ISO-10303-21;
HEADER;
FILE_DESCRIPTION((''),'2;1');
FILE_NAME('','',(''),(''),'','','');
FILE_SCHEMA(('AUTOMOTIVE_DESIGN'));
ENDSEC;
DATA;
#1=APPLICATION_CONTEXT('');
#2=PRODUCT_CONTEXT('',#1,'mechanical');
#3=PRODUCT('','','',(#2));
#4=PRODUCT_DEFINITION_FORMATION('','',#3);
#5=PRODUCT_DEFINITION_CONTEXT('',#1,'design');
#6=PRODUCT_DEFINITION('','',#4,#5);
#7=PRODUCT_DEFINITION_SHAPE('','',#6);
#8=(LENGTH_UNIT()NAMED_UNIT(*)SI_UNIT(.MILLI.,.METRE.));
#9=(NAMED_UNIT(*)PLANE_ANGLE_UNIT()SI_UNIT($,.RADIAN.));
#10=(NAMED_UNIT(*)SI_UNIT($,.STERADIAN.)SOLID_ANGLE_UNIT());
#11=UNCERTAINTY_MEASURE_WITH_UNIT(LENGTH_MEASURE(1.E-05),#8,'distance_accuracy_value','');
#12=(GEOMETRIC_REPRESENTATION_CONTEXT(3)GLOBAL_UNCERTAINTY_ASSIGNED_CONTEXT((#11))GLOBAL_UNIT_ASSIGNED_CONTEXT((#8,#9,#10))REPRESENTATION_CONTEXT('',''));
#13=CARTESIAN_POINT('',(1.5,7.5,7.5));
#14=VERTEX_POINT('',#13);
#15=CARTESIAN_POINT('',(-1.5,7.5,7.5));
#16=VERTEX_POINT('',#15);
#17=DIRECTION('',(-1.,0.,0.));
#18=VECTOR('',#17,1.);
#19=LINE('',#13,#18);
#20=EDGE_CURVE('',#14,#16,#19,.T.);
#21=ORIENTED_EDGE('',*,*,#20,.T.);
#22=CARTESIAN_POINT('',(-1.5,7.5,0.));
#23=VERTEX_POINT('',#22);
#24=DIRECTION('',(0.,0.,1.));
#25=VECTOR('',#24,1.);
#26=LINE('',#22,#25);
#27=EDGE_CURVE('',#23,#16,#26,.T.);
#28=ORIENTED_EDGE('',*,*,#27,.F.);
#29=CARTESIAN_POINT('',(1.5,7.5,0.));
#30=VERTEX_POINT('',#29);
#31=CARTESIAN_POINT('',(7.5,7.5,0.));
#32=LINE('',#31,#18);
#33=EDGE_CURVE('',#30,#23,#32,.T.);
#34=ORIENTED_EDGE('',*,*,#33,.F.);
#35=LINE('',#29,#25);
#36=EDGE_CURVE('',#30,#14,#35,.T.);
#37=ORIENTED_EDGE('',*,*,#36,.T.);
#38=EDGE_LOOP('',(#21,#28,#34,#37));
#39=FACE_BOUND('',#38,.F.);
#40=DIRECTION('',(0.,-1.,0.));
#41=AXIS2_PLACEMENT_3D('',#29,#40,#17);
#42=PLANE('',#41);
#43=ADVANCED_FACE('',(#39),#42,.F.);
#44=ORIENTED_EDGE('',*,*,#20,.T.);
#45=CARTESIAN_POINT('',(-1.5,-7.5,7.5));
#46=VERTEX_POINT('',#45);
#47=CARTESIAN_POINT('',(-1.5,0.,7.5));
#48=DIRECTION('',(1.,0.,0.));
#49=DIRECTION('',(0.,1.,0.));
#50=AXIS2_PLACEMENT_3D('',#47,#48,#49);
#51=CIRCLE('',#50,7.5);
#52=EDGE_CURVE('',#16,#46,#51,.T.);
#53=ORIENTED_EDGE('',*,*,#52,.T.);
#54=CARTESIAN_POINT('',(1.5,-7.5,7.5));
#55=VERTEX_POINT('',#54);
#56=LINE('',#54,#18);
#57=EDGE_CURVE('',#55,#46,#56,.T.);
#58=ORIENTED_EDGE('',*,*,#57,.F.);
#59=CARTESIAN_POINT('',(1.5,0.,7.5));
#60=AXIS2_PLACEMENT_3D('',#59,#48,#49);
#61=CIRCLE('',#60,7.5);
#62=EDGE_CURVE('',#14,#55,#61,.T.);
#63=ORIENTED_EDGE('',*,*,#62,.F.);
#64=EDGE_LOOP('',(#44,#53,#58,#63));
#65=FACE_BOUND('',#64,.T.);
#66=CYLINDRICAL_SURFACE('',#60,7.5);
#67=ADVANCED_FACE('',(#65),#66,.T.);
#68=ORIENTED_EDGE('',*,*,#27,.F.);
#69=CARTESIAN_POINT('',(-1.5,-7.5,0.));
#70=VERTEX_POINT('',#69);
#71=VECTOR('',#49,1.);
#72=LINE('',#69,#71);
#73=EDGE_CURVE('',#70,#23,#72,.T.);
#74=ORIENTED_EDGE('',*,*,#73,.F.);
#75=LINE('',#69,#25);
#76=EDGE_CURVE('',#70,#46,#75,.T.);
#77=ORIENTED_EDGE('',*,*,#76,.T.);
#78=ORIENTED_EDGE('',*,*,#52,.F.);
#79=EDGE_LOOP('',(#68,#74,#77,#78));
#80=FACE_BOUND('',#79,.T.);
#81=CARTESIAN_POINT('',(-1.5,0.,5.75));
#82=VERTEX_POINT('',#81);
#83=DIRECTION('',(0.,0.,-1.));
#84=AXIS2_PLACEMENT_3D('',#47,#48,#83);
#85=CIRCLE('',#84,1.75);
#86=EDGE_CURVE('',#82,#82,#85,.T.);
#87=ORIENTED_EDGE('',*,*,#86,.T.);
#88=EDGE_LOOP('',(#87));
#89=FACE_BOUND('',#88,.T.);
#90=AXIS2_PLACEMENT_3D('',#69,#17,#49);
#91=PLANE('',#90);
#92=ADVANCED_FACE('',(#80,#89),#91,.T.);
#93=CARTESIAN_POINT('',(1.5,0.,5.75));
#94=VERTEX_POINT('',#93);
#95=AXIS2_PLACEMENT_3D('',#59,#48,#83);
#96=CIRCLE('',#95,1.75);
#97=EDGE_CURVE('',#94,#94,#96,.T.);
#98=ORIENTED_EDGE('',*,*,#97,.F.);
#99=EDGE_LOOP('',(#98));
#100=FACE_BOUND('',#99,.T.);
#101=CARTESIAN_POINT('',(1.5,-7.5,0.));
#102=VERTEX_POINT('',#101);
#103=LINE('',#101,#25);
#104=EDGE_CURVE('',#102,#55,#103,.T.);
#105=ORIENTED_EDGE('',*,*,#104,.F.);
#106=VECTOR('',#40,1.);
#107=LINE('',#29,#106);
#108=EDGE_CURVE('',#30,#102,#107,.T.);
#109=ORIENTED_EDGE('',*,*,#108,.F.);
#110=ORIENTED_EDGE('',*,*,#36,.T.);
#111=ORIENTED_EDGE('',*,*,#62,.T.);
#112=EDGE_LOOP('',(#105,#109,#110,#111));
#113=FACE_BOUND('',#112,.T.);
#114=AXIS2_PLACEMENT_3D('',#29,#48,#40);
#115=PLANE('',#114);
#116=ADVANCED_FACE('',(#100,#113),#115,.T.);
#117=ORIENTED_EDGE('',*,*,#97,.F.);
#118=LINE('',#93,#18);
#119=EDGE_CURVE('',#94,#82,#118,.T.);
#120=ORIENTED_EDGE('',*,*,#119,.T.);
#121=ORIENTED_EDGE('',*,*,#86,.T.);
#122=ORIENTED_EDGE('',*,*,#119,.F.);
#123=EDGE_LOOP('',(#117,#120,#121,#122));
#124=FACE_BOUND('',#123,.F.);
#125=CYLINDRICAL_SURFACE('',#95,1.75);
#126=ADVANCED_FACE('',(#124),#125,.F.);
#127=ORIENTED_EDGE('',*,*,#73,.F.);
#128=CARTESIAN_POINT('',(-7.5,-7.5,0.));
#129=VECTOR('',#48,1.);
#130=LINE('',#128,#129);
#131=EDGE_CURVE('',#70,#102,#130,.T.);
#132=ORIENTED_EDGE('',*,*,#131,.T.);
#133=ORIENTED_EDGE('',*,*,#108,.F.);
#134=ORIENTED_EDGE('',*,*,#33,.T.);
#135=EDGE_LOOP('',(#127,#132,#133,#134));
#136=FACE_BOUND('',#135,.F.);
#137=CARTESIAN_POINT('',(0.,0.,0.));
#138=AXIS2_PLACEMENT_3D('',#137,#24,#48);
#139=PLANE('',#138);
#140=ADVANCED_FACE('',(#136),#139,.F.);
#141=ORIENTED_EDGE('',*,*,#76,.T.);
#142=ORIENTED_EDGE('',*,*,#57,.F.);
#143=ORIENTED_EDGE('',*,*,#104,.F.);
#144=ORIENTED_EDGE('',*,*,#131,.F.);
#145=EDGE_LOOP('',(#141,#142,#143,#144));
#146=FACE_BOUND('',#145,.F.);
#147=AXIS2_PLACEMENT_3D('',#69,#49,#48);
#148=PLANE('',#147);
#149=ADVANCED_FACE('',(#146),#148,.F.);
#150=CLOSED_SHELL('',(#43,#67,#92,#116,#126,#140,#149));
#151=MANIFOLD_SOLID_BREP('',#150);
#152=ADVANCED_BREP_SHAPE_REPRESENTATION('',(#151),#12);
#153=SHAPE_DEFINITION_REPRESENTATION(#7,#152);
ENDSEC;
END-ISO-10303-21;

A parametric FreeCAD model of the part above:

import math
import FreeCAD as App
import Part
import Sketcher


def add_polygon(sketch, points):
    """Adds a closed chain of lines whose ends are joined by coincident constraints."""
    first, n = sketch.GeometryCount, len(points)
    for a, b in zip(points, points[1:] + points[:1]):
        sketch.addGeometry(Part.LineSegment(App.Vector(*a, 0), App.Vector(*b, 0)), False)
    for i in range(n):
        sketch.addConstraint(Sketcher.Constraint("Coincident", first + i, 2, first + (i + 1) % n, 1))

doc = App.newDocument("Part")
params = doc.addObject("Spreadsheet::Sheet", "Params")
for row, (alias, value) in enumerate([
    ("sketch1_width", "3 mm"),
    ("sketch1_height", "15 mm"),
    ("pad1_length", "15 mm"),
    ("sketch2_diameter", "3.5 mm"),
    ("sketch2_radius", "7.5 mm"),
], start=1):
    params.set(f"A{row}", alias)
    params.set(f"B{row}", "=" + value)
    params.setAlias(f"B{row}", alias)

body = doc.addObject("PartDesign::Body", "Body")

# Sketch on XY plane
sketch1 = body.newObject("Sketcher::SketchObject", "Sketch")
sketch1.AttachmentSupport = (doc.getObject("XY_Plane"), [""])
sketch1.MapMode = "FlatFace"
add_polygon(sketch1, [(1.5, -7.5), (1.5, 7.5), (-1.5, 7.5), (-1.5, -7.5)])  # lines 0-3
sketch1.addConstraint([
    Sketcher.Constraint("Vertical", 0),
    Sketcher.Constraint("Horizontal", 1),
    Sketcher.Constraint("Vertical", 2),
    Sketcher.Constraint("Horizontal", 3),
    Sketcher.Constraint("Symmetric", 0, 2, 2, 2, -1, 1),
    Sketcher.Constraint("DistanceX", 1, 2, 1, 1, 3.0),
    Sketcher.Constraint("DistanceY", 0, 1, 0, 2, 15.0),
])
sketch1.setExpression("Constraints[9]", "Params.sketch1_width")
sketch1.setExpression("Constraints[10]", "Params.sketch1_height")
pad1 = body.newObject("PartDesign::Pad", "Pad")
pad1.Profile = sketch1
pad1.setExpression("Length", "Params.pad1_length")

# Sketch on YZ plane
sketch2 = body.newObject("Sketcher::SketchObject", "Sketch001")
sketch2.AttachmentSupport = (doc.getObject("YZ_Plane"), [""])
sketch2.MapMode = "FlatFace"
sketch2.AttachmentOffset = App.Placement(App.Vector(0, 0, 1.5), App.Rotation())
sketch2.addGeometry([
    Part.ArcOfCircle(Part.Circle(App.Vector(0, 7.5, 0), App.Vector(0, 0, 1), 7.5), math.radians(0), math.radians(90)),  # 0
    Part.LineSegment(App.Vector(7.5, 7.5, 0), App.Vector(7.5, 15, 0)),  # 1
    Part.LineSegment(App.Vector(7.5, 15, 0), App.Vector(0, 15, 0)),  # 2
    Part.LineSegment(App.Vector(-7.5, 15, 0), App.Vector(-7.5, 7.5, 0)),  # 3
    Part.ArcOfCircle(Part.Circle(App.Vector(0, 7.5, 0), App.Vector(0, 0, 1), 7.5), math.radians(90), math.radians(180)),  # 4
    Part.LineSegment(App.Vector(0, 15, 0), App.Vector(-7.5, 15, 0)),  # 5
    Part.Circle(App.Vector(0, 7.5, 0), App.Vector(0, 0, 1), 1.75),  # 6
], False)
sketch2.addConstraint([
    Sketcher.Constraint("Tangent", 0, 1, 1, 1),
    Sketcher.Constraint("Coincident", 1, 2, 2, 1),
    Sketcher.Constraint("Tangent", 2, 2, 0, 2),
    Sketcher.Constraint("Tangent", 3, 2, 4, 2),
    Sketcher.Constraint("Tangent", 4, 1, 5, 1),
    Sketcher.Constraint("Coincident", 5, 2, 3, 1),
    Sketcher.Constraint("Vertical", 1),
    Sketcher.Constraint("Horizontal", 2),
    Sketcher.Constraint("Vertical", 3),
    Sketcher.Constraint("Horizontal", 5),
    Sketcher.Constraint("Coincident", 4, 3, 0, 3),
    Sketcher.Constraint("Coincident", 6, 3, 0, 3),
    Sketcher.Constraint("Equal", 0, 4),
    Sketcher.Constraint("PointOnObject", 0, 3, -2),
    Sketcher.Constraint("Diameter", 6, 3.5),
    Sketcher.Constraint("Radius", 0, 7.5),
    Sketcher.Constraint("DistanceY", -1, 1, 0, 3, 7.5),
])
sketch2.setExpression("Constraints[14]", "Params.sketch2_diameter")
sketch2.setExpression("Constraints[15]", "Params.sketch2_radius")
pocket1 = body.newObject("PartDesign::Pocket", "Pocket")
pocket1.Profile = sketch2
pocket1.Type = "UpToFirst"

doc.recompute()
